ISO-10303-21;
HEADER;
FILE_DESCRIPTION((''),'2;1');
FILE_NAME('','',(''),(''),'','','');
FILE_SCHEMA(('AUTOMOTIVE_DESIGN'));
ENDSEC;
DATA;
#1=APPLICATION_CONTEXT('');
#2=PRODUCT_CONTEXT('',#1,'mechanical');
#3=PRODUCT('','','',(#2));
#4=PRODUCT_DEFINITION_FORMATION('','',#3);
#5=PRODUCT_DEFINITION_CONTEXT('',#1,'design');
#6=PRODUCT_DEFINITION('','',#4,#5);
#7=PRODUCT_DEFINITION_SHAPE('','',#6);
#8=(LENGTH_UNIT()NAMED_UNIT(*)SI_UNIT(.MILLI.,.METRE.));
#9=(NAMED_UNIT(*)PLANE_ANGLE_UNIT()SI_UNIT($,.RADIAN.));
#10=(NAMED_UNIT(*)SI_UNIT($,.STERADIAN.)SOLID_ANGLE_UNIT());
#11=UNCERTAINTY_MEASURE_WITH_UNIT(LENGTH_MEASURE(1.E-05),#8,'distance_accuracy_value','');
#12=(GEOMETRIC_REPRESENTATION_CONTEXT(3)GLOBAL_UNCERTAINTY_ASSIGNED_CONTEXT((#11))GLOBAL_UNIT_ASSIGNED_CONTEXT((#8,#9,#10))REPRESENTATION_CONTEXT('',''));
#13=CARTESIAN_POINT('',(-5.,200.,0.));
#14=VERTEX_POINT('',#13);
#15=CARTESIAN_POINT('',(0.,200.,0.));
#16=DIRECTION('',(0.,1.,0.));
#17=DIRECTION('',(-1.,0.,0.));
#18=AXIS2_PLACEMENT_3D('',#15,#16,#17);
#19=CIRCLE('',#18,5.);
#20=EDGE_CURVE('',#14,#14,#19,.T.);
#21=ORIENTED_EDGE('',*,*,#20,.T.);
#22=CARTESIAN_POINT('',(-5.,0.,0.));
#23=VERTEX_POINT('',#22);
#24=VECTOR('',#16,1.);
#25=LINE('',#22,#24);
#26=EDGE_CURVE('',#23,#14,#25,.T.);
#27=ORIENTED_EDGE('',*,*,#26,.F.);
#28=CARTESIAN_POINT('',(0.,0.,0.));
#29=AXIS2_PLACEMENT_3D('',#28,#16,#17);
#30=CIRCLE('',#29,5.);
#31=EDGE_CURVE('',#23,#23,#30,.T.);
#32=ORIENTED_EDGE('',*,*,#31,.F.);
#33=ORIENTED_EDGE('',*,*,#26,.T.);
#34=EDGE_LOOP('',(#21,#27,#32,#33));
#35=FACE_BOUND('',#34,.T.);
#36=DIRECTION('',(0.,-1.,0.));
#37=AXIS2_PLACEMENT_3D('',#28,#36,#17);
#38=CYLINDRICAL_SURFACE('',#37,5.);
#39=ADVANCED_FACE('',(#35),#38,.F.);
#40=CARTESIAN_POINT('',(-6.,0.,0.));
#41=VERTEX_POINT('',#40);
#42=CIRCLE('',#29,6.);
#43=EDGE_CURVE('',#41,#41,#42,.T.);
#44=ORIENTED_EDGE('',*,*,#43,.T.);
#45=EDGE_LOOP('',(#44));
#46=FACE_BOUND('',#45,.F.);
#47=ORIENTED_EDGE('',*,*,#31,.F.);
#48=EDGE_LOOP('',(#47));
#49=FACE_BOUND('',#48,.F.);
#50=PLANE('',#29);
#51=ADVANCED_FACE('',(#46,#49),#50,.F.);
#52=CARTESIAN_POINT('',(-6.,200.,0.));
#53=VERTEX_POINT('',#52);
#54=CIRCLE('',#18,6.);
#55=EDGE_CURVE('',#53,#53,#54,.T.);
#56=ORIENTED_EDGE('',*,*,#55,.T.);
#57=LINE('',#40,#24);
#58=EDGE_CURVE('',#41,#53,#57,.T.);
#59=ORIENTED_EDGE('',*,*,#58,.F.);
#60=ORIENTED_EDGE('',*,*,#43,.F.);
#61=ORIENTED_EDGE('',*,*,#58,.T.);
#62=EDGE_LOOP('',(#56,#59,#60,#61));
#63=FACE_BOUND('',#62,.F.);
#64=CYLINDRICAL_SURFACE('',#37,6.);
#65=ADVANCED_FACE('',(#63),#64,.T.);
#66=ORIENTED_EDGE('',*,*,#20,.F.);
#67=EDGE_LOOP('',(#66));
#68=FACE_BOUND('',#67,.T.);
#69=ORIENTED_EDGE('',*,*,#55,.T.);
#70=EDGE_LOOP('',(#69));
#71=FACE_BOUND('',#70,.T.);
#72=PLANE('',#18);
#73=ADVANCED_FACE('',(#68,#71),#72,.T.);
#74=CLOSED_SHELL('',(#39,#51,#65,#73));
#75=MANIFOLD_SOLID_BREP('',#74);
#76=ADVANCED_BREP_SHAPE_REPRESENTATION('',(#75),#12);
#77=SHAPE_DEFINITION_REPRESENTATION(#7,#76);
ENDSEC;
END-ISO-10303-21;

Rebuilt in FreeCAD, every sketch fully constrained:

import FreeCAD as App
import Part
import Sketcher
from FreeCAD import Vector

doc = App.newDocument("Part")
params = doc.addObject("Spreadsheet::Sheet", "Params")
for row, (alias, value) in enumerate([
    ("sketch1_diameter", "12 mm"),
    ("sketch1_diameter2", "10 mm"),
    ("pad1_length", "200 mm"),
], start=1):
    params.set(f"A{row}", alias)
    params.set(f"B{row}", "=" + value)
    params.setAlias(f"B{row}", alias)

body = doc.addObject("PartDesign::Body", "Body")

# Sketch on XZ plane
sketch1 = body.newObject("Sketcher::SketchObject", "Sketch")
sketch1.AttachmentSupport = (doc.getObject("XZ_Plane"), [""])
sketch1.MapMode = "FlatFace"
sketch1.addGeometry([
    Part.Circle(Vector(0, 0, 0), Vector(0, 0, 1), 6),
    Part.Circle(Vector(0, 0, 0), Vector(0, 0, 1), 5),
], False)
sketch1.addConstraint([
    Sketcher.Constraint("Coincident", 0, 3, -1, 1),
    Sketcher.Constraint("Coincident", 1, 3, -1, 1),
    Sketcher.Constraint("Diameter", 0, 12.0),
    Sketcher.Constraint("Diameter", 1, 10.0),
])
sketch1.setExpression("Constraints[2]", "Params.sketch1_diameter")
sketch1.setExpression("Constraints[3]", "Params.sketch1_diameter2")
pad1 = body.newObject("PartDesign::Pad", "Pad")
pad1.Profile = sketch1
pad1.setExpression("Length", "Params.pad1_length")
pad1.Reversed = True

doc.recompute()
